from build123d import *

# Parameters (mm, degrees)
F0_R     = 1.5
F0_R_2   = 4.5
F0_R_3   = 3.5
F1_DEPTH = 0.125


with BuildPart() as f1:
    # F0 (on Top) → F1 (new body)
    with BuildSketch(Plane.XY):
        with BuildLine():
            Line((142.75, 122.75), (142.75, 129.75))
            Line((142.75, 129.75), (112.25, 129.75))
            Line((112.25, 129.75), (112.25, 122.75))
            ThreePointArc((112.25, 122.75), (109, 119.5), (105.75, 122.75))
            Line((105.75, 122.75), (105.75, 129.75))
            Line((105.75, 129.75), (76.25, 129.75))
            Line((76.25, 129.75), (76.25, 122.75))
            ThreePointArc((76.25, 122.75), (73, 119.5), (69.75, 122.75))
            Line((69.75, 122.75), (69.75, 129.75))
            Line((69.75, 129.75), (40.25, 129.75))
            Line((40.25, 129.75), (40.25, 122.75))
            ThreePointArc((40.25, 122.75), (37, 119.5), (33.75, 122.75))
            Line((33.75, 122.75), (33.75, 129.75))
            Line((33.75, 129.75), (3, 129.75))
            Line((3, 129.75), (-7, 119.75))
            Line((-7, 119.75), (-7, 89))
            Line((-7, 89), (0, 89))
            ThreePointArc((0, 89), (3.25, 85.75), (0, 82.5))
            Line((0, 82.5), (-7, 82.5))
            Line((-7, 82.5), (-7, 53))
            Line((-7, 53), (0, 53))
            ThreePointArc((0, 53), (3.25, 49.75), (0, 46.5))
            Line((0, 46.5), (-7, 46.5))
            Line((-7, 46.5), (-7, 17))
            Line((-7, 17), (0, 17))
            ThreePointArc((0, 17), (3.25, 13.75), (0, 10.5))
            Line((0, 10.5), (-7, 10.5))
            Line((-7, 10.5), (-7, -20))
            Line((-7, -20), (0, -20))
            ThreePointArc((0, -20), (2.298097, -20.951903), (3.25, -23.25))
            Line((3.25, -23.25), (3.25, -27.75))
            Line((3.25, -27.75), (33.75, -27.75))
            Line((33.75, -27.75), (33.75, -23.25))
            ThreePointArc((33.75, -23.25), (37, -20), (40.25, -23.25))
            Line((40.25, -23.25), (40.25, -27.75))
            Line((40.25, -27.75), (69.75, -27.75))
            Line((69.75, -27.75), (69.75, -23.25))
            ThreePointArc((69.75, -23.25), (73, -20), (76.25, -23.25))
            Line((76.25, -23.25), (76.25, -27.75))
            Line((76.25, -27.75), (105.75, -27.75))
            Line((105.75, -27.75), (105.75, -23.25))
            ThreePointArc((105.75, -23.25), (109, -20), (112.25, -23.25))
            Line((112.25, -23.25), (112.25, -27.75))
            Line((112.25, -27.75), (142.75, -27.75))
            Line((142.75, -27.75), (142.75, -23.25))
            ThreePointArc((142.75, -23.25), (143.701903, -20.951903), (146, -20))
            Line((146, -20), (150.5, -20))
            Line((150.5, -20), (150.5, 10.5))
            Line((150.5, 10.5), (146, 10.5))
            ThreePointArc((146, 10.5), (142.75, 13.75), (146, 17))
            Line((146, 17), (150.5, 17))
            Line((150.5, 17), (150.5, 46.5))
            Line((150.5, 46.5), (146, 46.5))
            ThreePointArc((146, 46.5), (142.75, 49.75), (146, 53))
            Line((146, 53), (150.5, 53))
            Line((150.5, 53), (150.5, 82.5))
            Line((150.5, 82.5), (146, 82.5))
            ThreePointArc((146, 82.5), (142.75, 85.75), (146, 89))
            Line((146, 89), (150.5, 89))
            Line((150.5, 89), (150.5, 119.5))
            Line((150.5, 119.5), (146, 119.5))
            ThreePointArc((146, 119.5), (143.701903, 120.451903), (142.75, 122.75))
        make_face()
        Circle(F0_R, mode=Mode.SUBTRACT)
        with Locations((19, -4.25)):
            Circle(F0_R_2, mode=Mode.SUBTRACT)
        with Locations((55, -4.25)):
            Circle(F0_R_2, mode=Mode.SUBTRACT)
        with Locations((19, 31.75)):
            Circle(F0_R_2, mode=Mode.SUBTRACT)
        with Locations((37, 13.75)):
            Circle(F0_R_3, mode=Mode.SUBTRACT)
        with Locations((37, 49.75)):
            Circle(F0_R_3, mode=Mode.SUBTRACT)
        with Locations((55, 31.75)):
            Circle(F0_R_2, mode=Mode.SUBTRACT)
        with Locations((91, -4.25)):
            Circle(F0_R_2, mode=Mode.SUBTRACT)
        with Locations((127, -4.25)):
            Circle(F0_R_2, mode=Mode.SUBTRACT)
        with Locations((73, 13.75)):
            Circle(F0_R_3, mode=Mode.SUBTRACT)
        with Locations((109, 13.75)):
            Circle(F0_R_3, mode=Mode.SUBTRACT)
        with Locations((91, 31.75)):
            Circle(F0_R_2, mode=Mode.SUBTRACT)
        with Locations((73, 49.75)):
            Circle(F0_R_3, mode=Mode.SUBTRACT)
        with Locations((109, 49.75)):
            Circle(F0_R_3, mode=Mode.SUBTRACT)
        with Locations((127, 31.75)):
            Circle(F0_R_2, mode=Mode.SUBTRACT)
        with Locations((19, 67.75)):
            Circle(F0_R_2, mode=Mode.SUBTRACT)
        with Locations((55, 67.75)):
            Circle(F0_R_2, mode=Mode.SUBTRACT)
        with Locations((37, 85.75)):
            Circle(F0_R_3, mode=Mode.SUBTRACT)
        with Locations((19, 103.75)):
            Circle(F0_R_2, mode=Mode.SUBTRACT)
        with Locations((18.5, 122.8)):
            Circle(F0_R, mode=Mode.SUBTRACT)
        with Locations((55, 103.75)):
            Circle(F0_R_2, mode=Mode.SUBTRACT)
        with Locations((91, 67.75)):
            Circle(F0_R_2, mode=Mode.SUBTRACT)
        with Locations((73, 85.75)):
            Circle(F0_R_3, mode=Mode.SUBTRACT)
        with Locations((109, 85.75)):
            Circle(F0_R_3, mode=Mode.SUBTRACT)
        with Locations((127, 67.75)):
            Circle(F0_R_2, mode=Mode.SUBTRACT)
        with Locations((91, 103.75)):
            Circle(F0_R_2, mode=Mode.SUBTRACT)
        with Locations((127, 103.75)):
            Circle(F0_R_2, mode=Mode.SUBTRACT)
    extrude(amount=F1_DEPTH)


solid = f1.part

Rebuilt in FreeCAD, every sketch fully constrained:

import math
import FreeCAD as App
import Part
import Sketcher

V = App.Vector
Q = App.Units.Quantity

doc = App.newDocument("Part")
params = doc.addObject("Spreadsheet::Sheet", "Params")
for row, (alias, value) in enumerate([
    ("sketch1_diameter", "3 mm"),
    ("sketch1_diameter2", "9 mm"),
    ("sketch1_diameter3", "7 mm"),
    ("sketch1_width", "7 mm"),
    ("sketch1_radius", "3.25 mm"),
    ("pad1_length", "0.125 mm"),
], start=1):
    params.set(f"A{row}", alias)
    params.set(f"B{row}", "=" + value)
    params.setAlias(f"B{row}", alias)

body = doc.addObject("PartDesign::Body", "Body")

sketch1 = body.newObject("Sketcher::SketchObject", "Sketch")
sketch1.AttachmentSupport = (doc.getObject("XY_Plane"), [""])
sketch1.MapMode = "FlatFace"
sketch1.addGeometry([
    Part.LineSegment(V(142.8, 122.8, 0), V(142.8, 129.8, 0)),
    Part.LineSegment(V(142.8, 129.8, 0), V(112.2, 129.8, 0)),
    Part.LineSegment(V(112.2, 129.8, 0), V(112.2, 122.8, 0)),
    Part.ArcOfCircle(Part.Circle(V(109, 122.8, 0), V(0, 0, 1), 3.2), math.radians(180), math.radians(360)),
    Part.LineSegment(V(105.8, 122.8, 0), V(105.8, 129.8, 0)),
    Part.LineSegment(V(105.8, 129.8, 0), V(76.2, 129.8, 0)),
    Part.LineSegment(V(76.2, 129.8, 0), V(76.2, 122.8, 0)),
    Part.ArcOfCircle(Part.Circle(V(73, 122.8, 0), V(0, 0, 1), 3.2), math.radians(180), math.radians(360)),
    Part.LineSegment(V(69.8, 122.8, 0), V(69.8, 129.8, 0)),
    Part.LineSegment(V(69.8, 129.8, 0), V(40.2, 129.8, 0)),
    Part.LineSegment(V(40.2, 129.8, 0), V(40.2, 122.8, 0)),
    Part.ArcOfCircle(Part.Circle(V(37, 122.8, 0), V(0, 0, 1), 3.2), math.radians(180), math.radians(360)),
    Part.LineSegment(V(33.8, 122.8, 0), V(33.8, 129.8, 0)),
    Part.LineSegment(V(33.8, 129.8, 0), V(3, 129.8, 0)),
    Part.LineSegment(V(3, 129.8, 0), V(-7, 119.8, 0)),
    Part.LineSegment(V(-7, 119.8, 0), V(-7, 89, 0)),
    Part.LineSegment(V(-7, 89, 0), V(0, 89, 0)),
    Part.ArcOfCircle(Part.Circle(V(0, 85.8, 0), V(0, 0, 1), 3.2), math.radians(-90), math.radians(90)),
    Part.LineSegment(V(0, 82.5, 0), V(-7, 82.5, 0)),
    Part.LineSegment(V(-7, 82.5, 0), V(-7, 53, 0)),
    Part.LineSegment(V(-7, 53, 0), V(0, 53, 0)),
    Part.ArcOfCircle(Part.Circle(V(0, 49.8, 0), V(0, 0, 1), 3.2), math.radians(-90), math.radians(90)),
    Part.LineSegment(V(0, 46.5, 0), V(-7, 46.5, 0)),
    Part.LineSegment(V(-7, 46.5, 0), V(-7, 17, 0)),
    Part.LineSegment(V(-7, 17, 0), V(0, 17, 0)),
    Part.ArcOfCircle(Part.Circle(V(0, 13.8, 0), V(0, 0, 1), 3.2), math.radians(-90), math.radians(90)),
    Part.LineSegment(V(0, 10.5, 0), V(-7, 10.5, 0)),
    Part.LineSegment(V(-7, 10.5, 0), V(-7, -20, 0)),
    Part.LineSegment(V(-7, -20, 0), V(0, -20, 0)),
    Part.ArcOfCircle(Part.Circle(V(0, -23.3, 0), V(0, 0, 1), 3.3), math.radians(0), math.radians(90)),
    Part.LineSegment(V(3.2, -23.2, 0), V(3.2, -27.8, 0)),
    Part.LineSegment(V(3.2, -27.8, 0), V(33.8, -27.8, 0)),
    Part.LineSegment(V(33.8, -27.8, 0), V(33.8, -23.2, 0)),
    Part.ArcOfCircle(Part.Circle(V(37, -23.2, 0), V(0, 0, 1), 3.2), math.radians(0), math.radians(180)),
    Part.LineSegment(V(40.2, -23.2, 0), V(40.2, -27.8, 0)),
    Part.LineSegment(V(40.2, -27.8, 0), V(69.8, -27.8, 0)),
    Part.LineSegment(V(69.8, -27.8, 0), V(69.8, -23.2, 0)),
    Part.ArcOfCircle(Part.Circle(V(73, -23.2, 0), V(0, 0, 1), 3.2), math.radians(0), math.radians(180)),
    Part.LineSegment(V(76.2, -23.2, 0), V(76.2, -27.8, 0)),
    Part.LineSegment(V(76.2, -27.8, 0), V(105.8, -27.8, 0)),
    Part.LineSegment(V(105.8, -27.8, 0), V(105.8, -23.2, 0)),
    Part.ArcOfCircle(Part.Circle(V(109, -23.2, 0), V(0, 0, 1), 3.2), math.radians(0), math.radians(180)),
    Part.LineSegment(V(112.2, -23.2, 0), V(112.2, -27.8, 0)),
    Part.LineSegment(V(112.2, -27.8, 0), V(142.8, -27.8, 0)),
    Part.LineSegment(V(142.8, -27.8, 0), V(142.8, -23.2, 0)),
    Part.ArcOfCircle(Part.Circle(V(146, -23.3, 0), V(0, 0, 1), 3.3), math.radians(90), math.radians(180)),
    Part.LineSegment(V(146, -20, 0), V(150.5, -20, 0)),
    Part.LineSegment(V(150.5, -20, 0), V(150.5, 10.5, 0)),
    Part.LineSegment(V(150.5, 10.5, 0), V(146, 10.5, 0)),
    Part.ArcOfCircle(Part.Circle(V(146, 13.8, 0), V(0, 0, 1), 3.2), math.radians(90), math.radians(270)),
    Part.LineSegment(V(146, 17, 0), V(150.5, 17, 0)),
    Part.LineSegment(V(150.5, 17, 0), V(150.5, 46.5, 0)),
    Part.LineSegment(V(150.5, 46.5, 0), V(146, 46.5, 0)),
    Part.ArcOfCircle(Part.Circle(V(146, 49.8, 0), V(0, 0, 1), 3.2), math.radians(90), math.radians(270)),
    Part.LineSegment(V(146, 53, 0), V(150.5, 53, 0)),
    Part.LineSegment(V(150.5, 53, 0), V(150.5, 82.5, 0)),
    Part.LineSegment(V(150.5, 82.5, 0), V(146, 82.5, 0)),
    Part.ArcOfCircle(Part.Circle(V(146, 85.8, 0), V(0, 0, 1), 3.2), math.radians(90), math.radians(270)),
    Part.LineSegment(V(146, 89, 0), V(150.5, 89, 0)),
    Part.LineSegment(V(150.5, 89, 0), V(150.5, 119.5, 0)),
    Part.LineSegment(V(150.5, 119.5, 0), V(146, 119.5, 0)),
    Part.ArcOfCircle(Part.Circle(V(146, 122.8, 0), V(0, 0, 1), 3.3), math.radians(-180), math.radians(-90)),
    Part.Circle(V(0, 0, 0), V(0, 0, 1), 1.5),
    Part.Circle(V(19, -4.2, 0), V(0, 0, 1), 4.5),
    Part.Circle(V(55, -4.2, 0), V(0, 0, 1), 4.5),
    Part.Circle(V(37, 13.8, 0), V(0, 0, 1), 3.5),
    Part.Circle(V(19, 31.8, 0), V(0, 0, 1), 4.5),
    Part.Circle(V(55, 31.8, 0), V(0, 0, 1), 4.5),
    Part.Circle(V(37, 49.8, 0), V(0, 0, 1), 3.5),
    Part.Circle(V(91, -4.2, 0), V(0, 0, 1), 4.5),
    Part.Circle(V(73, 13.8, 0), V(0, 0, 1), 3.5),
    Part.Circle(V(127, -4.2, 0), V(0, 0, 1), 4.5),
    Part.Circle(V(109, 13.8, 0), V(0, 0, 1), 3.5),
    Part.Circle(V(91, 31.8, 0), V(0, 0, 1), 4.5),
    Part.Circle(V(73, 49.8, 0), V(0, 0, 1), 3.5),
    Part.Circle(V(127, 31.8, 0), V(0, 0, 1), 4.5),
    Part.Circle(V(109, 49.8, 0), V(0, 0, 1), 3.5),
    Part.Circle(V(19, 67.8, 0), V(0, 0, 1), 4.5),
    Part.Circle(V(55, 67.8, 0), V(0, 0, 1), 4.5),
    Part.Circle(V(37, 85.8, 0), V(0, 0, 1), 3.5),
    Part.Circle(V(19, 103.8, 0), V(0, 0, 1), 4.5),
    Part.Circle(V(18.5, 122.8, 0), V(0, 0, 1), 1.5),
    Part.Circle(V(55, 103.8, 0), V(0, 0, 1), 4.5),
    Part.Circle(V(91, 67.8, 0), V(0, 0, 1), 4.5),
    Part.Circle(V(73, 85.8, 0), V(0, 0, 1), 3.5),
    Part.Circle(V(127, 67.8, 0), V(0, 0, 1), 4.5),
    Part.Circle(V(109, 85.8, 0), V(0, 0, 1), 3.5),
    Part.Circle(V(91, 103.8, 0), V(0, 0, 1), 4.5),
    Part.Circle(V(127, 103.8, 0), V(0, 0, 1), 4.5),
], False)
sketch1.addConstraint([
    Sketcher.Constraint("Coincident", 0, 2, 1, 1),
    Sketcher.Constraint("Coincident", 1, 2, 2, 1),
    Sketcher.Constraint("Tangent", 2, 2, 3, 2),
    Sketcher.Constraint("Tangent", 3, 1, 4, 1),
    Sketcher.Constraint("Coincident", 4, 2, 5, 1),
    Sketcher.Constraint("Coincident", 5, 2, 6, 1),
    Sketcher.Constraint("Tangent", 6, 2, 7, 2),
    Sketcher.Constraint("Tangent", 7, 1, 8, 1),
    Sketcher.Constraint("Coincident", 8, 2, 9, 1),
    Sketcher.Constraint("Coincident", 9, 2, 10, 1),
    Sketcher.Constraint("Tangent", 10, 2, 11, 2),
    Sketcher.Constraint("Tangent", 11, 1, 12, 1),
    Sketcher.Constraint("Coincident", 12, 2, 13, 1),
    Sketcher.Constraint("Coincident", 13, 2, 14, 1),
    Sketcher.Constraint("Coincident", 14, 2, 15, 1),
    Sketcher.Constraint("Coincident", 15, 2, 16, 1),
    Sketcher.Constraint("Tangent", 16, 2, 17, 2),
    Sketcher.Constraint("Tangent", 17, 1, 18, 1),
    Sketcher.Constraint("Coincident", 18, 2, 19, 1),
    Sketcher.Constraint("Coincident", 19, 2, 20, 1),
    Sketcher.Constraint("Tangent", 20, 2, 21, 2),
    Sketcher.Constraint("Tangent", 21, 1, 22, 1),
    Sketcher.Constraint("Coincident", 22, 2, 23, 1),
    Sketcher.Constraint("Coincident", 23, 2, 24, 1),
    Sketcher.Constraint("Tangent", 24, 2, 25, 2),
    Sketcher.Constraint("Tangent", 25, 1, 26, 1),
    Sketcher.Constraint("Coincident", 26, 2, 27, 1),
    Sketcher.Constraint("Coincident", 27, 2, 28, 1),
    Sketcher.Constraint("Tangent", 28, 2, 29, 2),
    Sketcher.Constraint("Tangent", 29, 1, 30, 1),
    Sketcher.Constraint("Coincident", 30, 2, 31, 1),
    Sketcher.Constraint("Coincident", 31, 2, 32, 1),
    Sketcher.Constraint("Tangent", 32, 2, 33, 2),
    Sketcher.Constraint("Tangent", 33, 1, 34, 1),
    Sketcher.Constraint("Coincident", 34, 2, 35, 1),
    Sketcher.Constraint("Coincident", 35, 2, 36, 1),
    Sketcher.Constraint("Tangent", 36, 2, 37, 2),
    Sketcher.Constraint("Tangent", 37, 1, 38, 1),
    Sketcher.Constraint("Coincident", 38, 2, 39, 1),
    Sketcher.Constraint("Coincident", 39, 2, 40, 1),
    Sketcher.Constraint("Tangent", 40, 2, 41, 2),
    Sketcher.Constraint("Tangent", 41, 1, 42, 1),
    Sketcher.Constraint("Coincident", 42, 2, 43, 1),
    Sketcher.Constraint("Coincident", 43, 2, 44, 1),
    Sketcher.Constraint("Tangent", 44, 2, 45, 2),
    Sketcher.Constraint("Tangent", 45, 1, 46, 1),
    Sketcher.Constraint("Coincident", 46, 2, 47, 1),
    Sketcher.Constraint("Coincident", 47, 2, 48, 1),
    Sketcher.Constraint("Tangent", 48, 2, 49, 2),
    Sketcher.Constraint("Tangent", 49, 1, 50, 1),
    Sketcher.Constraint("Coincident", 50, 2, 51, 1),
    Sketcher.Constraint("Coincident", 51, 2, 52, 1),
    Sketcher.Constraint("Tangent", 52, 2, 53, 2),
    Sketcher.Constraint("Tangent", 53, 1, 54, 1),
    Sketcher.Constraint("Coincident", 54, 2, 55, 1),
    Sketcher.Constraint("Coincident", 55, 2, 56, 1),
    Sketcher.Constraint("Tangent", 56, 2, 57, 2),
    Sketcher.Constraint("Tangent", 57, 1, 58, 1),
    Sketcher.Constraint("Coincident", 58, 2, 59, 1),
    Sketcher.Constraint("Coincident", 59, 2, 60, 1),
    Sketcher.Constraint("Tangent", 60, 2, 61, 2),
    Sketcher.Constraint("Tangent", 61, 1, 0, 1),
    Sketcher.Constraint("Vertical", 0),
    Sketcher.Constraint("Horizontal", 1),
    Sketcher.Constraint("Vertical", 2),
    Sketcher.Constraint("Vertical", 4),
    Sketcher.Constraint("Horizontal", 5),
    Sketcher.Constraint("Vertical", 6),
    Sketcher.Constraint("Vertical", 8),
    Sketcher.Constraint("Horizontal", 9),
    Sketcher.Constraint("Vertical", 10),
    Sketcher.Constraint("Vertical", 12),
    Sketcher.Constraint("Horizontal", 13),
    Sketcher.Constraint("Vertical", 15),
    Sketcher.Constraint("Horizontal", 16),
    Sketcher.Constraint("Horizontal", 18),
    Sketcher.Constraint("Vertical", 19),
    Sketcher.Constraint("Horizontal", 20),
    Sketcher.Constraint("Horizontal", 22),
    Sketcher.Constraint("Vertical", 23),
    Sketcher.Constraint("Horizontal", 24),
    Sketcher.Constraint("Horizontal", 26),
    Sketcher.Constraint("Vertical", 27),
    Sketcher.Constraint("Horizontal", 28),
    Sketcher.Constraint("Vertical", 30),
    Sketcher.Constraint("Horizontal", 31),
    Sketcher.Constraint("Vertical", 32),
    Sketcher.Constraint("Vertical", 34),
    Sketcher.Constraint("Horizontal", 35),
    Sketcher.Constraint("Vertical", 36),
    Sketcher.Constraint("Vertical", 38),
    Sketcher.Constraint("Horizontal", 39),
    Sketcher.Constraint("Vertical", 40),
    Sketcher.Constraint("Vertical", 42),
    Sketcher.Constraint("Horizontal", 43),
    Sketcher.Constraint("Vertical", 44),
    Sketcher.Constraint("Horizontal", 46),
    Sketcher.Constraint("Vertical", 47),
    Sketcher.Constraint("Horizontal", 48),
    Sketcher.Constraint("Horizontal", 50),
    Sketcher.Constraint("Vertical", 51),
    Sketcher.Constraint("Horizontal", 52),
    Sketcher.Constraint("Horizontal", 54),
    Sketcher.Constraint("Vertical", 55),
    Sketcher.Constraint("Horizontal", 56),
    Sketcher.Constraint("Horizontal", 58),
    Sketcher.Constraint("Vertical", 59),
    Sketcher.Constraint("Horizontal", 60),
    Sketcher.Constraint("Coincident", 62, 3, -1, 1),
    Sketcher.Constraint("Equal", 3, 7),
    Sketcher.Constraint("Equal", 7, 11),
    Sketcher.Constraint("Equal", 11, 17),
    Sketcher.Constraint("Equal", 17, 21),
    Sketcher.Constraint("Equal", 21, 25),
    Sketcher.Constraint("Equal", 25, 29),
    Sketcher.Constraint("Equal", 29, 33),
    Sketcher.Constraint("Equal", 33, 37),
    Sketcher.Constraint("Equal", 37, 41),
    Sketcher.Constraint("Equal", 41, 45),
    Sketcher.Constraint("Equal", 45, 49),
    Sketcher.Constraint("Equal", 49, 53),
    Sketcher.Constraint("Equal", 53, 57),
    Sketcher.Constraint("Equal", 57, 61),
    Sketcher.Constraint("Equal", 63, 64),
    Sketcher.Constraint("Equal", 64, 66),
    Sketcher.Constraint("Equal", 66, 67),
    Sketcher.Constraint("Equal", 65, 68),
    Sketcher.Constraint("Equal", 67, 69),
    Sketcher.Constraint("Equal", 68, 70),
    Sketcher.Constraint("Equal", 69, 71),
    Sketcher.Constraint("Equal", 70, 72),
    Sketcher.Constraint("Equal", 71, 73),
    Sketcher.Constraint("Equal", 72, 74),
    Sketcher.Constraint("Equal", 73, 75),
    Sketcher.Constraint("Equal", 74, 76),
    Sketcher.Constraint("Equal", 75, 77),
    Sketcher.Constraint("Equal", 77, 78),
    Sketcher.Constraint("Equal", 76, 79),
    Sketcher.Constraint("Equal", 78, 80),
    Sketcher.Constraint("Equal", 62, 81),
    Sketcher.Constraint("Equal", 80, 82),
    Sketcher.Constraint("Equal", 82, 83),
    Sketcher.Constraint("Equal", 79, 84),
    Sketcher.Constraint("Equal", 83, 85),
    Sketcher.Constraint("Equal", 84, 86),
    Sketcher.Constraint("Equal", 85, 87),
    Sketcher.Constraint("Equal", 87, 88),
    Sketcher.Constraint("PointOnObject", 17, 3, -2),
    Sketcher.Constraint("PointOnObject", 21, 3, -2),
    Sketcher.Constraint("PointOnObject", 25, 3, -2),
    Sketcher.Constraint("PointOnObject", 29, 3, -2),
    Sketcher.Constraint("Horizontal", 3, 3, 7, 3),
    Sketcher.Constraint("Horizontal", 7, 3, 11, 3),
    Sketcher.Constraint("Horizontal", 29, 3, 33, 3),
    Sketcher.Constraint("Horizontal", 33, 3, 37, 3),
    Sketcher.Constraint("Horizontal", 37, 3, 41, 3),
    Sketcher.Constraint("Horizontal", 41, 3, 45, 3),
    Sketcher.Constraint("Horizontal", 25, 3, 49, 3),
    Sketcher.Constraint("Horizontal", 21, 3, 53, 3),
    Sketcher.Constraint("Horizontal", 17, 3, 57, 3),
    Sketcher.Constraint("Horizontal", 11, 3, 61, 3),
    Sketcher.Constraint("Horizontal", 63, 3, 64, 3),
    Sketcher.Constraint("Horizontal", 49, 3, 65, 3),
    Sketcher.Constraint("Horizontal", 66, 3, 67, 3),
    Sketcher.Constraint("Horizontal", 53, 3, 68, 3),
    Sketcher.Constraint("Horizontal", 64, 3, 69, 3),
    Sketcher.Constraint("Horizontal", 65, 3, 70, 3),
    Sketcher.Constraint("Horizontal", 69, 3, 71, 3),
    Sketcher.Constraint("Horizontal", 70, 3, 72, 3),
    Sketcher.Constraint("Horizontal", 67, 3, 73, 3),
    Sketcher.Constraint("Horizontal", 68, 3, 74, 3),
    Sketcher.Constraint("Horizontal", 73, 3, 75, 3),
    Sketcher.Constraint("Horizontal", 74, 3, 76, 3),
    Sketcher.Constraint("Horizontal", 77, 3, 78, 3),
    Sketcher.Constraint("Horizontal", 57, 3, 79, 3),
    Sketcher.Constraint("Horizontal", 80, 3, 82, 3),
    Sketcher.Constraint("Horizontal", 78, 3, 83, 3),
    Sketcher.Constraint("Horizontal", 79, 3, 84, 3),
    Sketcher.Constraint("Horizontal", 83, 3, 85, 3),
    Sketcher.Constraint("Horizontal", 84, 3, 86, 3),
    Sketcher.Constraint("Horizontal", 82, 3, 87, 3),
    Sketcher.Constraint("Horizontal", 87, 3, 88, 3),
    Sketcher.Constraint("Horizontal", 1, 2, 4, 2),
    Sketcher.Constraint("Horizontal", 5, 2, 8, 2),
    Sketcher.Constraint("Horizontal", 9, 2, 12, 2),
    Sketcher.Constraint("Horizontal", 31, 2, 34, 2),
    Sketcher.Constraint("Horizontal", 35, 2, 38, 2),
    Sketcher.Constraint("Horizontal", 39, 2, 42, 2),
    Sketcher.Constraint("Vertical", 11, 3, 33, 3),
    Sketcher.Constraint("Vertical", 7, 3, 37, 3),
    Sketcher.Constraint("Vertical", 3, 3, 41, 3),
    Sketcher.Constraint("Vertical", 45, 3, 49, 3),
    Sketcher.Constraint("Vertical", 49, 3, 53, 3),
    Sketcher.Constraint("Vertical", 53, 3, 57, 3),
    Sketcher.Constraint("Vertical", 57, 3, 61, 3),
    Sketcher.Constraint("Vertical", 33, 3, 65, 3),
    Sketcher.Constraint("Vertical", 63, 3, 66, 3),
    Sketcher.Constraint("Vertical", 64, 3, 67, 3),
    Sketcher.Constraint("Vertical", 65, 3, 68, 3),
    Sketcher.Constraint("Vertical", 37, 3, 70, 3),
    Sketcher.Constraint("Vertical", 41, 3, 72, 3),
    Sketcher.Constraint("Vertical", 69, 3, 73, 3),
    Sketcher.Constraint("Vertical", 70, 3, 74, 3),
    Sketcher.Constraint("Vertical", 71, 3, 75, 3),
    Sketcher.Constraint("Vertical", 72, 3, 76, 3),
    Sketcher.Constraint("Vertical", 66, 3, 77, 3),
    Sketcher.Constraint("Vertical", 67, 3, 78, 3),
    Sketcher.Constraint("Vertical", 68, 3, 79, 3),
    Sketcher.Constraint("Vertical", 77, 3, 80, 3),
    Sketcher.Constraint("Vertical", 78, 3, 82, 3),
    Sketcher.Constraint("Vertical", 73, 3, 83, 3),
    Sketcher.Constraint("Vertical", 74, 3, 84, 3),
    Sketcher.Constraint("Vertical", 75, 3, 85, 3),
    Sketcher.Constraint("Vertical", 76, 3, 86, 3),
    Sketcher.Constraint("Vertical", 83, 3, 87, 3),
    Sketcher.Constraint("Vertical", 85, 3, 88, 3),
    Sketcher.Constraint("Vertical", 15, 2, 18, 2),
    Sketcher.Constraint("Vertical", 19, 2, 22, 2),
    Sketcher.Constraint("Vertical", 23, 2, 26, 2),
    Sketcher.Constraint("Vertical", 47, 2, 50, 2),
    Sketcher.Constraint("Vertical", 51, 2, 54, 2),
    Sketcher.Constraint("Vertical", 55, 2, 58, 2),
    Sketcher.Constraint("Equal", 5, 9),
    Sketcher.Constraint("Equal", 1, 31),
    Sketcher.Constraint("Equal", 28, 0),
    Sketcher.Constraint("Equal", 13, 15),
    Sketcher.Constraint("Equal", 39, 19),
    Sketcher.Constraint("Equal", 19, 23),
    Sketcher.Constraint("Equal", 43, 27),
    Sketcher.Constraint("Equal", 60, 30),
    Sketcher.Constraint("Equal", 47, 59),
    Sketcher.Constraint("Diameter", 62, Q("3 mm")),
    Sketcher.Constraint("Diameter", 63, Q("9 mm")),
    Sketcher.Constraint("Diameter", 65, Q("7 mm")),
    Sketcher.Constraint("DistanceX", 16, 1, 16, 2, Q("7 mm")),
    Sketcher.Constraint("Radius", 3, Q("3.25 mm")),
    Sketcher.Constraint("DistanceX", 1, 2, 1, 1, Q("30.5 mm")),
    Sketcher.Constraint("DistanceX", 5, 2, 5, 1, Q("29.5 mm")),
    Sketcher.Constraint("DistanceX", 46, 1, 46, 2, Q("4.5 mm")),
    Sketcher.Constraint("DistanceX", -1, 1, 63, 3, Q("19 mm")),
    Sketcher.Constraint("DistanceX", -1, 1, 64, 3, Q("55 mm")),
    Sketcher.Constraint("DistanceX", -1, 1, 69, 3, Q("91 mm")),
    Sketcher.Constraint("DistanceX", -1, 1, 71, 3, Q("127 mm")),
    Sketcher.Constraint("DistanceX", -1, 1, 13, 2, Q("3 mm")),
    Sketcher.Constraint("DistanceY", -1, 1, 15, 2, Q("89 mm")),
    Sketcher.Constraint("DistanceX", -1, 1, 81, 3, Q("18.5 mm")),
    Sketcher.Constraint("DistanceY", -1, 1, 81, 3, Q("122.8 mm")),
    Sketcher.Constraint("DistanceY", 63, 3, -1, 1, Q("4.25 mm")),
    Sketcher.Constraint("DistanceY", -1, 1, 66, 3, Q("31.75 mm")),
    Sketcher.Constraint("DistanceY", -1, 1, 77, 3, Q("67.75 mm")),
    Sketcher.Constraint("DistanceY", -1, 1, 80, 3, Q("103.75 mm")),
])
sketch1.setExpression("Constraints[231]", "Params.sketch1_diameter")
sketch1.setExpression("Constraints[232]", "Params.sketch1_diameter2")
sketch1.setExpression("Constraints[233]", "Params.sketch1_diameter3")
sketch1.setExpression("Constraints[234]", "Params.sketch1_width")
sketch1.setExpression("Constraints[235]", "Params.sketch1_radius")
pad1 = body.newObject("PartDesign::Pad", "Pad")
pad1.Profile = sketch1
pad1.setExpression("Length", "Params.pad1_length")

doc.recompute()
